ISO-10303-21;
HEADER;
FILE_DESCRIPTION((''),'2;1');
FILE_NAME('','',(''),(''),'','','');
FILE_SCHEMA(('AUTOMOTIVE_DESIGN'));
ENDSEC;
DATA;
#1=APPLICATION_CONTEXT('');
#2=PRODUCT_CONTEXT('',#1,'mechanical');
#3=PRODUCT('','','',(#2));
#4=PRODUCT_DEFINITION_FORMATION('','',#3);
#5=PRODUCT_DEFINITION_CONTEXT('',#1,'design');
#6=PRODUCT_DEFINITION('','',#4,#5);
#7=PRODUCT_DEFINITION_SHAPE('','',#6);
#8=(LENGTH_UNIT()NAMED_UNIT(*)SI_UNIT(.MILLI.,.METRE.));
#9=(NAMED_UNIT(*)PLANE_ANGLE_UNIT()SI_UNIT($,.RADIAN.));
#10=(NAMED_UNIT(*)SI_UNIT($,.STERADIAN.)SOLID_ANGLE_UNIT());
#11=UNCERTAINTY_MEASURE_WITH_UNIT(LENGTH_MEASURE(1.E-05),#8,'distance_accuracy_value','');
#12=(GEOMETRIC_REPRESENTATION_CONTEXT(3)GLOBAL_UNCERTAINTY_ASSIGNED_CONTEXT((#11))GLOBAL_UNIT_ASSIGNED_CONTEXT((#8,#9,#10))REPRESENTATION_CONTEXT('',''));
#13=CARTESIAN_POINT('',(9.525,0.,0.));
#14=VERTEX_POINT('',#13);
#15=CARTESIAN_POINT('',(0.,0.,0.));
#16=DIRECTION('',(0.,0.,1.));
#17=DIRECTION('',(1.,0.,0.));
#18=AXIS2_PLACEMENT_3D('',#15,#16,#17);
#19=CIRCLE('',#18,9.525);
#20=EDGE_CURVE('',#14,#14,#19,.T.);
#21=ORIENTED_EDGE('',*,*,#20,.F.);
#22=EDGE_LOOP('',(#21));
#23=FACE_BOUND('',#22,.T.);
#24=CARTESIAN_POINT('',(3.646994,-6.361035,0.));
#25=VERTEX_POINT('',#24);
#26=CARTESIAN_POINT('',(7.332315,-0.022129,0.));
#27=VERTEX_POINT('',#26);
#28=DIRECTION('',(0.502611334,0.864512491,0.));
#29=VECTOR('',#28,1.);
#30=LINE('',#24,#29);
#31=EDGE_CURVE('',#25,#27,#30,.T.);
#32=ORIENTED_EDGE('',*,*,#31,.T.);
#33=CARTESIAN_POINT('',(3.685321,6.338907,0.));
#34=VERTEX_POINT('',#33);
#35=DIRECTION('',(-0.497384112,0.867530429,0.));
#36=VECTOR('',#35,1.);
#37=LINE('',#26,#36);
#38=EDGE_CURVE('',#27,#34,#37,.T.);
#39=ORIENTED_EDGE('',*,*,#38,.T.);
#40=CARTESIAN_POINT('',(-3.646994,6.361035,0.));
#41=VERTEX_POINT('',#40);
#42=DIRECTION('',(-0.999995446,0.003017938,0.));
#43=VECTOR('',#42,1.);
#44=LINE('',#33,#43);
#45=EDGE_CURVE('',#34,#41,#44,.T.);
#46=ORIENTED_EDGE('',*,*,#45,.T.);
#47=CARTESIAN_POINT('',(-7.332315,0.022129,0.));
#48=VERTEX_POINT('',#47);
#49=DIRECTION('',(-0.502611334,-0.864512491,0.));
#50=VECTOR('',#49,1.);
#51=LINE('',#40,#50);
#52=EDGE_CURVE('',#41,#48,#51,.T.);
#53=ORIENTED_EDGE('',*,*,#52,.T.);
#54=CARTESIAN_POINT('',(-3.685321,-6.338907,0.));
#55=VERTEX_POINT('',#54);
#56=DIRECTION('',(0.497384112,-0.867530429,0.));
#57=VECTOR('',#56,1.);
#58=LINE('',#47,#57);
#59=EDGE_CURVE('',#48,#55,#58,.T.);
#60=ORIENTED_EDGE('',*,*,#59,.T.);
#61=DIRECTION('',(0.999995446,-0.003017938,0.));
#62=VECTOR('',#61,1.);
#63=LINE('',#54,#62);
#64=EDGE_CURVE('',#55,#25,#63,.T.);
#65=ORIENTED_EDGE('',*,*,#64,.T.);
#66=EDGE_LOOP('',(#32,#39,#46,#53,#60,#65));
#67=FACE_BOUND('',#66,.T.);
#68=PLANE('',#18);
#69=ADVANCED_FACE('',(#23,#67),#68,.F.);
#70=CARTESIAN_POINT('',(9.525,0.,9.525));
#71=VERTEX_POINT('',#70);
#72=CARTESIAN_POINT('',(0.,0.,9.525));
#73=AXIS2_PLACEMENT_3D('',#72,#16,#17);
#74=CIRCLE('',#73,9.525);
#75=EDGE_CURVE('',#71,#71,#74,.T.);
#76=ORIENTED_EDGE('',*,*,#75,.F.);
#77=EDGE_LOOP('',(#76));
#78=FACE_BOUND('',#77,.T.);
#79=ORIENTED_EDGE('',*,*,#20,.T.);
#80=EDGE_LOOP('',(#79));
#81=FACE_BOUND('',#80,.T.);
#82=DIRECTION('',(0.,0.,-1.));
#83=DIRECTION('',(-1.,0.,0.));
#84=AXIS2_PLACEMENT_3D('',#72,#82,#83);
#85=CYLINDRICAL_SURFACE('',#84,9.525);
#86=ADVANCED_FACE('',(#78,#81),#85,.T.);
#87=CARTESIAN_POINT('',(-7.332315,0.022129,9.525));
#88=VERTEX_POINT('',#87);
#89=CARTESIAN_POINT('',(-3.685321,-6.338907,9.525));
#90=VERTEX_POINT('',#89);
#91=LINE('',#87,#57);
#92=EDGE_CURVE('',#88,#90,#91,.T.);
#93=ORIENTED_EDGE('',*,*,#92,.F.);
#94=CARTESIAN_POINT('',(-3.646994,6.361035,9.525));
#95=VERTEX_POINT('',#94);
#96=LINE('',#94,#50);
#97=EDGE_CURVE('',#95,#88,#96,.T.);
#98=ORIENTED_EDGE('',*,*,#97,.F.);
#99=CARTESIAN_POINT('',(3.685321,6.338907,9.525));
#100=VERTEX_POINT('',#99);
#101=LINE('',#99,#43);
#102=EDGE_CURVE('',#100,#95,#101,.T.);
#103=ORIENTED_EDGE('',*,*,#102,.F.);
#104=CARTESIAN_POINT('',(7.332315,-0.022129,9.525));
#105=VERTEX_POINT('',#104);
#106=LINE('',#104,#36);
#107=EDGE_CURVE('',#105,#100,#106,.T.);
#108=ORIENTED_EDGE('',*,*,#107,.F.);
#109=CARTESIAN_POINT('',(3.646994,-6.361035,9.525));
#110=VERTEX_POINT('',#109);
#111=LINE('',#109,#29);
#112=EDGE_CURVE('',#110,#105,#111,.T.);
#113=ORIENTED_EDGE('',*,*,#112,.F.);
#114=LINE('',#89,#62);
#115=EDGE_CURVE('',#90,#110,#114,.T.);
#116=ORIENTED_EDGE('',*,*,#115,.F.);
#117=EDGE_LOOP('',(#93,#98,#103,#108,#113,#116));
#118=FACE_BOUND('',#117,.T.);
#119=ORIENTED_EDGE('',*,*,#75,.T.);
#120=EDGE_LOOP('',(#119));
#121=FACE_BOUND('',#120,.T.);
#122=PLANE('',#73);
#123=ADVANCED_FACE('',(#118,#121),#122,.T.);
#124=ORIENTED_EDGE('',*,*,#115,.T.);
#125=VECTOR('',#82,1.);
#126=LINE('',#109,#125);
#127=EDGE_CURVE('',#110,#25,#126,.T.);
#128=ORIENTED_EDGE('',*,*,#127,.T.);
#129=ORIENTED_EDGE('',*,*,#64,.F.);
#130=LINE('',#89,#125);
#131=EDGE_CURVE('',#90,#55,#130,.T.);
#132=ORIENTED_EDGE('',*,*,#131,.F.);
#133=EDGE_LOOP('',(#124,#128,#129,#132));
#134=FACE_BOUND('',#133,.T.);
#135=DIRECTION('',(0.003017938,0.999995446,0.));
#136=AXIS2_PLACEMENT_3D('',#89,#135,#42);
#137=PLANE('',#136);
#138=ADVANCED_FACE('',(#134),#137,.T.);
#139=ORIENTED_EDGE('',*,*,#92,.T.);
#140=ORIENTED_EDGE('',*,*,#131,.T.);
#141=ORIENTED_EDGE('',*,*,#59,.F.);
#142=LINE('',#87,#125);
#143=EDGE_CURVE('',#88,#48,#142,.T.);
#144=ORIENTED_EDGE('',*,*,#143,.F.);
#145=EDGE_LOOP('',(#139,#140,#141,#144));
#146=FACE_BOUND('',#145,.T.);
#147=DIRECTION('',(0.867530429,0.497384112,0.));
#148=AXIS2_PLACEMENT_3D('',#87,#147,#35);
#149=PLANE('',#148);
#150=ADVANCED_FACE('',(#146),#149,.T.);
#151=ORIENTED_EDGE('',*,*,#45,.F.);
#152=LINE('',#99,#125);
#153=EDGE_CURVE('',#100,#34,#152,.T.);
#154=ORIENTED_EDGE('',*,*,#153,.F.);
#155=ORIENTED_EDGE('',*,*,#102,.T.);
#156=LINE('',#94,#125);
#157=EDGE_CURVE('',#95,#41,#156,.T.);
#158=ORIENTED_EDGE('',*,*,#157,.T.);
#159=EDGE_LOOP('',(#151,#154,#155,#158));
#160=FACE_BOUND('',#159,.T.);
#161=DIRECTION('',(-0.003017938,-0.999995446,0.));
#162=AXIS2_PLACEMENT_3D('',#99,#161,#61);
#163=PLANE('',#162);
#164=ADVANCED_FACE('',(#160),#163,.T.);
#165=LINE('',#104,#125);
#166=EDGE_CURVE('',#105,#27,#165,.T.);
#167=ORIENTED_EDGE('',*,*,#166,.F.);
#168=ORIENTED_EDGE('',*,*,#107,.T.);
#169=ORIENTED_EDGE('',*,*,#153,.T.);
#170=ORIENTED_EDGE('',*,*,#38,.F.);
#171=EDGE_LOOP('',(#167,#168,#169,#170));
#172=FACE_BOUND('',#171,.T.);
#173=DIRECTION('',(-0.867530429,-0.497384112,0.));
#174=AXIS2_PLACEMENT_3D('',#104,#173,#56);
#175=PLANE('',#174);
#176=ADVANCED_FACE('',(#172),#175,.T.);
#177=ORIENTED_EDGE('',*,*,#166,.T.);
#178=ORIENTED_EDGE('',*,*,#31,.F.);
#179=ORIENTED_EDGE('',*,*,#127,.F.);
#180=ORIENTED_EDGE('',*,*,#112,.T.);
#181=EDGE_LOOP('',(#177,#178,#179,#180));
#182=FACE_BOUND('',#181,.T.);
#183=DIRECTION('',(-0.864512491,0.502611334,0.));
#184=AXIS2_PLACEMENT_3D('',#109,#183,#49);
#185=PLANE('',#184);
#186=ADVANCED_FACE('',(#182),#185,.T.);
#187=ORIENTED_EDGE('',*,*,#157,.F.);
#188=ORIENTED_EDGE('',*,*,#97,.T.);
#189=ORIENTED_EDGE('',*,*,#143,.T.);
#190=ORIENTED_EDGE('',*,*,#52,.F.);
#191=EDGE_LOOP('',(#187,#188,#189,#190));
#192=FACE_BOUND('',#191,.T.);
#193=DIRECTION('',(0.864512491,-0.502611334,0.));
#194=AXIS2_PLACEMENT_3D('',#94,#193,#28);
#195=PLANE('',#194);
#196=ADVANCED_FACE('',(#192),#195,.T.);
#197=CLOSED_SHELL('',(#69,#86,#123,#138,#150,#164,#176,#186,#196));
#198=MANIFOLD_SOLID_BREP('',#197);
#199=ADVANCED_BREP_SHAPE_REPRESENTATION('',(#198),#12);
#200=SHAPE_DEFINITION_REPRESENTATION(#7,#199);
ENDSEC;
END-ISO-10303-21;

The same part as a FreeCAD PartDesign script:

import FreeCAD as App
import Part
import Sketcher
from FreeCAD import Vector
Q = App.Units.Quantity


def add_polygon(sketch, points):
    """Adds a closed chain of lines whose ends are joined by coincident constraints."""
    first, n = sketch.GeometryCount, len(points)
    for a, b in zip(points, points[1:] + points[:1]):
        sketch.addGeometry(Part.LineSegment(App.Vector(*a, 0), App.Vector(*b, 0)), False)
    for i in range(n):
        sketch.addConstraint(Sketcher.Constraint("Coincident", first + i, 2, first + (i + 1) % n, 1))

doc = App.newDocument("Part")
body = doc.addObject("PartDesign::Body", "Body")

sketch1 = doc.addObject("Sketcher::SketchObject", "Sketch")
body.addObject(sketch1)
sketch1.AttachmentSupport = (doc.XY_Plane, [""])
sketch1.MapMode = "FlatFace"
sketch1.addGeometry(Part.Circle(Vector(0, 0, 0), Vector(0, 0, 1), 9.525), False)
add_polygon(sketch1, [(7.332315, -0.022129), (3.646994, -6.361035), (-3.685321, -6.338907), (-7.332315, 0.022129), (-3.646994, 6.361035), (3.685321, 6.338907)])
sketch1.addConstraint(Sketcher.Constraint("Coincident", 0, 3, -1, 1))
sketch1.addConstraint(Sketcher.Constraint("Diameter", 0, Q("0.75 in")))
sketch1.addConstraint(Sketcher.Constraint("Distance", 1, 7.332348))
sketch1.addConstraint(Sketcher.Constraint("Distance", 2, 7.332348))
sketch1.addConstraint(Sketcher.Constraint("Distance", 3, 7.332348))
sketch1.addConstraint(Sketcher.Constraint("Distance", 4, 7.332348))
sketch1.addConstraint(Sketcher.Constraint("Distance", 5, 7.332348))
sketch1.addConstraint(Sketcher.Constraint("Distance", 6, 7.332348))
sketch1.addConstraint(Sketcher.Constraint("DistanceX", 2, 2, -1, 1, 3.685321))
sketch1.addConstraint(Sketcher.Constraint("DistanceY", -1, 1, 3, 2, 0.022129))
sketch1.addConstraint(Sketcher.Constraint("DistanceX", -1, 1, 5, 2, 3.685321))
sketch1.addConstraint(Sketcher.Constraint("DistanceY", 6, 2, -1, 1, 0.022129))
sketch1.addConstraint(Sketcher.Constraint("DistanceY", 1, 2, 2, 2, 0.022129))
sketch1.addConstraint(Sketcher.Constraint("DistanceX", 3, 2, 1, 2, 10.979309))
pad1 = doc.addObject("PartDesign::Pad", "Pad")
body.addObject(pad1)
pad1.Profile = sketch1
pad1.Length = Q("0.375 in")

doc.recompute()
